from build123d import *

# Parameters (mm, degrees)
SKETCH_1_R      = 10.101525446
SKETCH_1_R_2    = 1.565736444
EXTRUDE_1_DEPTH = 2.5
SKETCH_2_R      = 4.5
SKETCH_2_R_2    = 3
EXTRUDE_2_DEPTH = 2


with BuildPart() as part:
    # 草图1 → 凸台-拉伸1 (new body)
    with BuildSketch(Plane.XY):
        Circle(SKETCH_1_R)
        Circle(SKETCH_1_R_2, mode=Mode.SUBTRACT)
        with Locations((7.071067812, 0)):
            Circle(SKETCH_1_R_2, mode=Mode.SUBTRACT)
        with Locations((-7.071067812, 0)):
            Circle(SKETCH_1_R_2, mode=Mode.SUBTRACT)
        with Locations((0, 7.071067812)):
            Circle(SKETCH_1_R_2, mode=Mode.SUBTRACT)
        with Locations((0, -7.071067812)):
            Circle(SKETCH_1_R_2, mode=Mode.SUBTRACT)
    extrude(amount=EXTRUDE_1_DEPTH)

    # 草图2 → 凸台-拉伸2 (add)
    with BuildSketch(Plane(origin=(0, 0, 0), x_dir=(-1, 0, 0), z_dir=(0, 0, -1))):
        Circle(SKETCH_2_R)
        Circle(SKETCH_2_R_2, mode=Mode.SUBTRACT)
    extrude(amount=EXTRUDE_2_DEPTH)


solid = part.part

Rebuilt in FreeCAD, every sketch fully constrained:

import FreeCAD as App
import Part
import Sketcher

V = App.Vector
Q = App.Units.Quantity

doc = App.newDocument("Part")
params = doc.addObject("Spreadsheet::Sheet", "Params")
for row, (alias, value) in enumerate([
    ("pad1_length", "2.5 mm"),
    ("sketch2_diameter", "9 mm"),
    ("sketch2_diameter2", "6 mm"),
    ("pad2_length", "2 mm"),
], start=1):
    params.set(f"A{row}", alias)
    params.set(f"B{row}", "=" + value)
    params.setAlias(f"B{row}", alias)

body = doc.addObject("PartDesign::Body", "Body")

sketch1 = body.newObject("Sketcher::SketchObject", "Sketch")
sketch1.AttachmentSupport = (doc.getObject("XY_Plane"), [""])
sketch1.MapMode = "FlatFace"
sketch1.addGeometry(Part.Circle(V(0, 0, 0), V(0, 0, 1), 10.1), False)
sketch1.addGeometry(Part.Circle(V(0, -7.1, 0), V(0, 0, 1), 1.6), False)
sketch1.addGeometry(Part.Circle(V(-7.1, 0, 0), V(0, 0, 1), 1.6), False)
sketch1.addGeometry(Part.Circle(V(0, 0, 0), V(0, 0, 1), 1.6), False)
sketch1.addGeometry(Part.Circle(V(7.1, 0, 0), V(0, 0, 1), 1.6), False)
sketch1.addGeometry(Part.Circle(V(0, 7.1, 0), V(0, 0, 1), 1.6), False)
sketch1.addConstraint(Sketcher.Constraint("Coincident", 0, 3, -1, 1))
sketch1.addConstraint(Sketcher.Constraint("Coincident", 3, 3, -1, 1))
sketch1.addConstraint(Sketcher.Constraint("Equal", 1, 2))
sketch1.addConstraint(Sketcher.Constraint("Equal", 2, 3))
sketch1.addConstraint(Sketcher.Constraint("Equal", 3, 4))
sketch1.addConstraint(Sketcher.Constraint("Equal", 4, 5))
sketch1.addConstraint(Sketcher.Constraint("Symmetric", 2, 3, 4, 3, -1, 1))
sketch1.addConstraint(Sketcher.Constraint("Symmetric", 1, 3, 5, 3, -1, 1))
sketch1.addConstraint(Sketcher.Constraint("PointOnObject", 1, 3, -2))
sketch1.addConstraint(Sketcher.Constraint("PointOnObject", 2, 3, -1))
sketch1.addConstraint(Sketcher.Constraint("Diameter", 0, Q("20.203051 mm")))
sketch1.addConstraint(Sketcher.Constraint("Diameter", 1, Q("3.131473 mm")))
sketch1.addConstraint(Sketcher.Constraint("DistanceY", 1, 3, -1, 1, Q("7.071068 mm")))
sketch1.addConstraint(Sketcher.Constraint("DistanceX", 2, 3, -1, 1, Q("7.071068 mm")))
pad1 = body.newObject("PartDesign::Pad", "Pad")
pad1.Profile = sketch1
pad1.setExpression("Length", "Params.pad1_length")

sketch2 = body.newObject("Sketcher::SketchObject", "Sketch001")
sketch2.AttachmentSupport = (doc.getObject("XY_Plane"), [""])
sketch2.MapMode = "FlatFace"
sketch2.addGeometry(Part.Circle(V(0, 0, 0), V(0, 0, 1), 4.5), False)
sketch2.addGeometry(Part.Circle(V(0, 0, 0), V(0, 0, 1), 3), False)
sketch2.addConstraint(Sketcher.Constraint("Coincident", 0, 3, -1, 1))
sketch2.addConstraint(Sketcher.Constraint("Coincident", 1, 3, -1, 1))
sketch2.addConstraint(Sketcher.Constraint("Diameter", 0, Q("9 mm")))
sketch2.addConstraint(Sketcher.Constraint("Diameter", 1, Q("6 mm")))
sketch2.setExpression("Constraints[2]", "Params.sketch2_diameter")
sketch2.setExpression("Constraints[3]", "Params.sketch2_diameter2")
pad2 = body.newObject("PartDesign::Pad", "Pad001")
pad2.Profile = sketch2
pad2.setExpression("Length", "Params.pad2_length")
pad2.Reversed = True

doc.recompute()
